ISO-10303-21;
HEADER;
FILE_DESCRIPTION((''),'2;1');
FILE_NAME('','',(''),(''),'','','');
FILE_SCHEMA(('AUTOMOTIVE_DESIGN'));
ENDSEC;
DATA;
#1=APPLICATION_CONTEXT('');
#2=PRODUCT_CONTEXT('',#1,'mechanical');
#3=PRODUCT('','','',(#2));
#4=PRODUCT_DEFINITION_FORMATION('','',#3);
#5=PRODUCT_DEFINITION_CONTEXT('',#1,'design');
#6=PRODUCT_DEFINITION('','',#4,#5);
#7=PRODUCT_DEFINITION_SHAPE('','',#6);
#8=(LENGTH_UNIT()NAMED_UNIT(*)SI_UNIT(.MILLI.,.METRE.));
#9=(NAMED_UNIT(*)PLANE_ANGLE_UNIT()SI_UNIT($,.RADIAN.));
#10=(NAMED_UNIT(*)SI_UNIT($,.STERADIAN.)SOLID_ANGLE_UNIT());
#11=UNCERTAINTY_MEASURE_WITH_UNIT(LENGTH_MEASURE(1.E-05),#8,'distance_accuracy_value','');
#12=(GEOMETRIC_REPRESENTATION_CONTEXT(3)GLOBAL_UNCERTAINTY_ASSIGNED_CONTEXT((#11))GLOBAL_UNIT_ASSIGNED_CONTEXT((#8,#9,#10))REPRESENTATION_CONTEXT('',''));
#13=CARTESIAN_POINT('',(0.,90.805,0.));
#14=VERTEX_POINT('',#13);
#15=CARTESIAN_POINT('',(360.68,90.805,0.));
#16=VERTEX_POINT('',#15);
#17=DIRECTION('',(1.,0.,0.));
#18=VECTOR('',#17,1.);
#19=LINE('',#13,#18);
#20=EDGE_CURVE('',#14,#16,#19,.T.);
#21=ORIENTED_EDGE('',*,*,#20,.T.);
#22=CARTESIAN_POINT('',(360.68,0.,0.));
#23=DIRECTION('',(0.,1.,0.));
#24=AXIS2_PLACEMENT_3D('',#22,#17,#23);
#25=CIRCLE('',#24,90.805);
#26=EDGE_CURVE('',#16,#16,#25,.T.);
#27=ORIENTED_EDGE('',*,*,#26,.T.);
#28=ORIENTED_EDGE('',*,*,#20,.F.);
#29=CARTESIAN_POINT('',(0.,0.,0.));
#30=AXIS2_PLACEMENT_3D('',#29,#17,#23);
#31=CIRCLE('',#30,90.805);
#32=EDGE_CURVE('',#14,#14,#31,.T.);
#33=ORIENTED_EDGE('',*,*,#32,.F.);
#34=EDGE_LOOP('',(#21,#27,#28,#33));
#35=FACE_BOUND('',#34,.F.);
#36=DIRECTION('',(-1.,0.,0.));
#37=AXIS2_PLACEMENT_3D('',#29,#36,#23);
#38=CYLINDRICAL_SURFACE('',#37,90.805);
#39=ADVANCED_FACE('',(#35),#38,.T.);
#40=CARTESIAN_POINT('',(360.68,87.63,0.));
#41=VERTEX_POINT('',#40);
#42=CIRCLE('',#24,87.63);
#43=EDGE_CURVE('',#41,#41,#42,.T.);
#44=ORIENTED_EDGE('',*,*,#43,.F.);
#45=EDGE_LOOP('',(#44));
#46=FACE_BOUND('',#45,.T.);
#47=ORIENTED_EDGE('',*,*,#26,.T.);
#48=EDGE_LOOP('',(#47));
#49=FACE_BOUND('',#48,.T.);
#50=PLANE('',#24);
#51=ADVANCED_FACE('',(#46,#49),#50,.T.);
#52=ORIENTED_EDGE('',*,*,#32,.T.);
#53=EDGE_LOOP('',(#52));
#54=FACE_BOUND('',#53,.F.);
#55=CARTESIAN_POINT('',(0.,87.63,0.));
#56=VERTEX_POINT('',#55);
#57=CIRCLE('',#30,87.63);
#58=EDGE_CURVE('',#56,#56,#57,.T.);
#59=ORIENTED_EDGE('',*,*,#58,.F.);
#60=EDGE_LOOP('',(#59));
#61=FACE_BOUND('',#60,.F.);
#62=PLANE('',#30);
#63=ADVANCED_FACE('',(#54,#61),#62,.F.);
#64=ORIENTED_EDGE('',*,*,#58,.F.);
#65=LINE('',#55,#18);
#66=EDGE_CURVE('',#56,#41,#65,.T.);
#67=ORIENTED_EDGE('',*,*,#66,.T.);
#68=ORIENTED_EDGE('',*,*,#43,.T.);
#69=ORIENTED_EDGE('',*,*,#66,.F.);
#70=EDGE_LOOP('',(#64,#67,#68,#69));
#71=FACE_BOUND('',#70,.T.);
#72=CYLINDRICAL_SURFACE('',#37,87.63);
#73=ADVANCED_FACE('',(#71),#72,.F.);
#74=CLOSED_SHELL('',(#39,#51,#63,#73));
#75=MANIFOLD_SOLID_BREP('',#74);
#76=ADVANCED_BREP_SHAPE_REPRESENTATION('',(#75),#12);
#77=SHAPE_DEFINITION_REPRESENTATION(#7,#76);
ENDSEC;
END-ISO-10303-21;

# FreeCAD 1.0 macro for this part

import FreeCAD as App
import Part
import Sketcher
Q = App.Units.Quantity

doc = App.newDocument("Part")
body = doc.addObject("PartDesign::Body", "Body")

# Sketch on YZ plane
sketch1 = body.newObject("Sketcher::SketchObject", "Sketch")
sketch1.AttachmentSupport = (doc.getObject("YZ_Plane"), [""])
sketch1.MapMode = "FlatFace"
sketch1.addGeometry(Part.Circle(App.Vector(0, 0, 0), App.Vector(0, 0, 1), 91), False)
sketch1.addGeometry(Part.Circle(App.Vector(0, 0, 0), App.Vector(0, 0, 1), 88), False)
sketch1.addConstraint(Sketcher.Constraint("Coincident", 0, 3, -1, 1))
sketch1.addConstraint(Sketcher.Constraint("Coincident", 1, 3, -1, 1))
sketch1.addConstraint(Sketcher.Constraint("Diameter", 1, Q("6.9 in")))
sketch1.addConstraint(Sketcher.Constraint("Diameter", 0, Q("7.15 in")))
pad1 = body.newObject("PartDesign::Pad", "Pad")
pad1.Profile = sketch1
pad1.Length = Q("14.2 in")

doc.recompute()
